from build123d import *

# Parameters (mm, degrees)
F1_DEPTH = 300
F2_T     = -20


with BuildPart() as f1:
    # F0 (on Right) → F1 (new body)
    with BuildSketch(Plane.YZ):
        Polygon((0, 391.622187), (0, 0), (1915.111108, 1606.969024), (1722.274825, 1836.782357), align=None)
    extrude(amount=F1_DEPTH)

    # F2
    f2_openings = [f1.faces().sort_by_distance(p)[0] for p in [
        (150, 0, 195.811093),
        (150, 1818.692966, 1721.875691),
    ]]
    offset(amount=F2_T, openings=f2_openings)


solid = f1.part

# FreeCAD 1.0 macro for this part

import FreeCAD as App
import Part
import Sketcher

V = App.Vector
Q = App.Units.Quantity


def faces_at(feature, points):
    """Names of the faces that lie closest to the given points."""
    faces = feature.Shape.Faces
    near = lambda p: min(range(len(faces)), key=lambda i: faces[i].distToShape(Part.Vertex(*p))[0])
    return sorted({f"Face{near(p) + 1}" for p in points})


def add_polygon(sketch, points):
    """Adds a closed chain of lines whose ends are joined by coincident constraints."""
    first, n = sketch.GeometryCount, len(points)
    for a, b in zip(points, points[1:] + points[:1]):
        sketch.addGeometry(Part.LineSegment(App.Vector(*a, 0), App.Vector(*b, 0)), False)
    for i in range(n):
        sketch.addConstraint(Sketcher.Constraint("Coincident", first + i, 2, first + (i + 1) % n, 1))

doc = App.newDocument("Part")
body = doc.addObject("PartDesign::Body", "Body")

# Sketch on YZ plane
sketch1 = body.newObject("Sketcher::SketchObject", "Sketch")
sketch1.AttachmentSupport = (doc.getObject("YZ_Plane"), [""])
sketch1.MapMode = "FlatFace"
add_polygon(sketch1, [(0, 392), (0, 0), (1915, 1607), (1722, 1837)])  # lines 0-3
sketch1.addConstraint([
    Sketcher.Constraint("Vertical", 0),
    Sketcher.Constraint("Coincident", 0, 2, -1, 1),
    Sketcher.Constraint("Perpendicular", 1, 2),
    Sketcher.Constraint("Perpendicular", 2, 3),
    Sketcher.Constraint("Angle", 1, Q("40 deg")),
    Sketcher.Constraint("Distance", 1, Q("2500 mm")),
    Sketcher.Constraint("Distance", 2, Q("300 mm")),
])
pad1 = body.newObject("PartDesign::Pad", "Pad")
pad1.Profile = sketch1
pad1.Length = 300
doc.recompute()

thickness = body.newObject("PartDesign::Thickness", "Thickness")
thickness.Base = (pad1, faces_at(pad1, [(150, 0, 195.811), (150, 1818.693, 1721.876)]))
thickness.Value = 20
thickness.Reversed = True
thickness.Join = "Arc"

doc.recompute()
